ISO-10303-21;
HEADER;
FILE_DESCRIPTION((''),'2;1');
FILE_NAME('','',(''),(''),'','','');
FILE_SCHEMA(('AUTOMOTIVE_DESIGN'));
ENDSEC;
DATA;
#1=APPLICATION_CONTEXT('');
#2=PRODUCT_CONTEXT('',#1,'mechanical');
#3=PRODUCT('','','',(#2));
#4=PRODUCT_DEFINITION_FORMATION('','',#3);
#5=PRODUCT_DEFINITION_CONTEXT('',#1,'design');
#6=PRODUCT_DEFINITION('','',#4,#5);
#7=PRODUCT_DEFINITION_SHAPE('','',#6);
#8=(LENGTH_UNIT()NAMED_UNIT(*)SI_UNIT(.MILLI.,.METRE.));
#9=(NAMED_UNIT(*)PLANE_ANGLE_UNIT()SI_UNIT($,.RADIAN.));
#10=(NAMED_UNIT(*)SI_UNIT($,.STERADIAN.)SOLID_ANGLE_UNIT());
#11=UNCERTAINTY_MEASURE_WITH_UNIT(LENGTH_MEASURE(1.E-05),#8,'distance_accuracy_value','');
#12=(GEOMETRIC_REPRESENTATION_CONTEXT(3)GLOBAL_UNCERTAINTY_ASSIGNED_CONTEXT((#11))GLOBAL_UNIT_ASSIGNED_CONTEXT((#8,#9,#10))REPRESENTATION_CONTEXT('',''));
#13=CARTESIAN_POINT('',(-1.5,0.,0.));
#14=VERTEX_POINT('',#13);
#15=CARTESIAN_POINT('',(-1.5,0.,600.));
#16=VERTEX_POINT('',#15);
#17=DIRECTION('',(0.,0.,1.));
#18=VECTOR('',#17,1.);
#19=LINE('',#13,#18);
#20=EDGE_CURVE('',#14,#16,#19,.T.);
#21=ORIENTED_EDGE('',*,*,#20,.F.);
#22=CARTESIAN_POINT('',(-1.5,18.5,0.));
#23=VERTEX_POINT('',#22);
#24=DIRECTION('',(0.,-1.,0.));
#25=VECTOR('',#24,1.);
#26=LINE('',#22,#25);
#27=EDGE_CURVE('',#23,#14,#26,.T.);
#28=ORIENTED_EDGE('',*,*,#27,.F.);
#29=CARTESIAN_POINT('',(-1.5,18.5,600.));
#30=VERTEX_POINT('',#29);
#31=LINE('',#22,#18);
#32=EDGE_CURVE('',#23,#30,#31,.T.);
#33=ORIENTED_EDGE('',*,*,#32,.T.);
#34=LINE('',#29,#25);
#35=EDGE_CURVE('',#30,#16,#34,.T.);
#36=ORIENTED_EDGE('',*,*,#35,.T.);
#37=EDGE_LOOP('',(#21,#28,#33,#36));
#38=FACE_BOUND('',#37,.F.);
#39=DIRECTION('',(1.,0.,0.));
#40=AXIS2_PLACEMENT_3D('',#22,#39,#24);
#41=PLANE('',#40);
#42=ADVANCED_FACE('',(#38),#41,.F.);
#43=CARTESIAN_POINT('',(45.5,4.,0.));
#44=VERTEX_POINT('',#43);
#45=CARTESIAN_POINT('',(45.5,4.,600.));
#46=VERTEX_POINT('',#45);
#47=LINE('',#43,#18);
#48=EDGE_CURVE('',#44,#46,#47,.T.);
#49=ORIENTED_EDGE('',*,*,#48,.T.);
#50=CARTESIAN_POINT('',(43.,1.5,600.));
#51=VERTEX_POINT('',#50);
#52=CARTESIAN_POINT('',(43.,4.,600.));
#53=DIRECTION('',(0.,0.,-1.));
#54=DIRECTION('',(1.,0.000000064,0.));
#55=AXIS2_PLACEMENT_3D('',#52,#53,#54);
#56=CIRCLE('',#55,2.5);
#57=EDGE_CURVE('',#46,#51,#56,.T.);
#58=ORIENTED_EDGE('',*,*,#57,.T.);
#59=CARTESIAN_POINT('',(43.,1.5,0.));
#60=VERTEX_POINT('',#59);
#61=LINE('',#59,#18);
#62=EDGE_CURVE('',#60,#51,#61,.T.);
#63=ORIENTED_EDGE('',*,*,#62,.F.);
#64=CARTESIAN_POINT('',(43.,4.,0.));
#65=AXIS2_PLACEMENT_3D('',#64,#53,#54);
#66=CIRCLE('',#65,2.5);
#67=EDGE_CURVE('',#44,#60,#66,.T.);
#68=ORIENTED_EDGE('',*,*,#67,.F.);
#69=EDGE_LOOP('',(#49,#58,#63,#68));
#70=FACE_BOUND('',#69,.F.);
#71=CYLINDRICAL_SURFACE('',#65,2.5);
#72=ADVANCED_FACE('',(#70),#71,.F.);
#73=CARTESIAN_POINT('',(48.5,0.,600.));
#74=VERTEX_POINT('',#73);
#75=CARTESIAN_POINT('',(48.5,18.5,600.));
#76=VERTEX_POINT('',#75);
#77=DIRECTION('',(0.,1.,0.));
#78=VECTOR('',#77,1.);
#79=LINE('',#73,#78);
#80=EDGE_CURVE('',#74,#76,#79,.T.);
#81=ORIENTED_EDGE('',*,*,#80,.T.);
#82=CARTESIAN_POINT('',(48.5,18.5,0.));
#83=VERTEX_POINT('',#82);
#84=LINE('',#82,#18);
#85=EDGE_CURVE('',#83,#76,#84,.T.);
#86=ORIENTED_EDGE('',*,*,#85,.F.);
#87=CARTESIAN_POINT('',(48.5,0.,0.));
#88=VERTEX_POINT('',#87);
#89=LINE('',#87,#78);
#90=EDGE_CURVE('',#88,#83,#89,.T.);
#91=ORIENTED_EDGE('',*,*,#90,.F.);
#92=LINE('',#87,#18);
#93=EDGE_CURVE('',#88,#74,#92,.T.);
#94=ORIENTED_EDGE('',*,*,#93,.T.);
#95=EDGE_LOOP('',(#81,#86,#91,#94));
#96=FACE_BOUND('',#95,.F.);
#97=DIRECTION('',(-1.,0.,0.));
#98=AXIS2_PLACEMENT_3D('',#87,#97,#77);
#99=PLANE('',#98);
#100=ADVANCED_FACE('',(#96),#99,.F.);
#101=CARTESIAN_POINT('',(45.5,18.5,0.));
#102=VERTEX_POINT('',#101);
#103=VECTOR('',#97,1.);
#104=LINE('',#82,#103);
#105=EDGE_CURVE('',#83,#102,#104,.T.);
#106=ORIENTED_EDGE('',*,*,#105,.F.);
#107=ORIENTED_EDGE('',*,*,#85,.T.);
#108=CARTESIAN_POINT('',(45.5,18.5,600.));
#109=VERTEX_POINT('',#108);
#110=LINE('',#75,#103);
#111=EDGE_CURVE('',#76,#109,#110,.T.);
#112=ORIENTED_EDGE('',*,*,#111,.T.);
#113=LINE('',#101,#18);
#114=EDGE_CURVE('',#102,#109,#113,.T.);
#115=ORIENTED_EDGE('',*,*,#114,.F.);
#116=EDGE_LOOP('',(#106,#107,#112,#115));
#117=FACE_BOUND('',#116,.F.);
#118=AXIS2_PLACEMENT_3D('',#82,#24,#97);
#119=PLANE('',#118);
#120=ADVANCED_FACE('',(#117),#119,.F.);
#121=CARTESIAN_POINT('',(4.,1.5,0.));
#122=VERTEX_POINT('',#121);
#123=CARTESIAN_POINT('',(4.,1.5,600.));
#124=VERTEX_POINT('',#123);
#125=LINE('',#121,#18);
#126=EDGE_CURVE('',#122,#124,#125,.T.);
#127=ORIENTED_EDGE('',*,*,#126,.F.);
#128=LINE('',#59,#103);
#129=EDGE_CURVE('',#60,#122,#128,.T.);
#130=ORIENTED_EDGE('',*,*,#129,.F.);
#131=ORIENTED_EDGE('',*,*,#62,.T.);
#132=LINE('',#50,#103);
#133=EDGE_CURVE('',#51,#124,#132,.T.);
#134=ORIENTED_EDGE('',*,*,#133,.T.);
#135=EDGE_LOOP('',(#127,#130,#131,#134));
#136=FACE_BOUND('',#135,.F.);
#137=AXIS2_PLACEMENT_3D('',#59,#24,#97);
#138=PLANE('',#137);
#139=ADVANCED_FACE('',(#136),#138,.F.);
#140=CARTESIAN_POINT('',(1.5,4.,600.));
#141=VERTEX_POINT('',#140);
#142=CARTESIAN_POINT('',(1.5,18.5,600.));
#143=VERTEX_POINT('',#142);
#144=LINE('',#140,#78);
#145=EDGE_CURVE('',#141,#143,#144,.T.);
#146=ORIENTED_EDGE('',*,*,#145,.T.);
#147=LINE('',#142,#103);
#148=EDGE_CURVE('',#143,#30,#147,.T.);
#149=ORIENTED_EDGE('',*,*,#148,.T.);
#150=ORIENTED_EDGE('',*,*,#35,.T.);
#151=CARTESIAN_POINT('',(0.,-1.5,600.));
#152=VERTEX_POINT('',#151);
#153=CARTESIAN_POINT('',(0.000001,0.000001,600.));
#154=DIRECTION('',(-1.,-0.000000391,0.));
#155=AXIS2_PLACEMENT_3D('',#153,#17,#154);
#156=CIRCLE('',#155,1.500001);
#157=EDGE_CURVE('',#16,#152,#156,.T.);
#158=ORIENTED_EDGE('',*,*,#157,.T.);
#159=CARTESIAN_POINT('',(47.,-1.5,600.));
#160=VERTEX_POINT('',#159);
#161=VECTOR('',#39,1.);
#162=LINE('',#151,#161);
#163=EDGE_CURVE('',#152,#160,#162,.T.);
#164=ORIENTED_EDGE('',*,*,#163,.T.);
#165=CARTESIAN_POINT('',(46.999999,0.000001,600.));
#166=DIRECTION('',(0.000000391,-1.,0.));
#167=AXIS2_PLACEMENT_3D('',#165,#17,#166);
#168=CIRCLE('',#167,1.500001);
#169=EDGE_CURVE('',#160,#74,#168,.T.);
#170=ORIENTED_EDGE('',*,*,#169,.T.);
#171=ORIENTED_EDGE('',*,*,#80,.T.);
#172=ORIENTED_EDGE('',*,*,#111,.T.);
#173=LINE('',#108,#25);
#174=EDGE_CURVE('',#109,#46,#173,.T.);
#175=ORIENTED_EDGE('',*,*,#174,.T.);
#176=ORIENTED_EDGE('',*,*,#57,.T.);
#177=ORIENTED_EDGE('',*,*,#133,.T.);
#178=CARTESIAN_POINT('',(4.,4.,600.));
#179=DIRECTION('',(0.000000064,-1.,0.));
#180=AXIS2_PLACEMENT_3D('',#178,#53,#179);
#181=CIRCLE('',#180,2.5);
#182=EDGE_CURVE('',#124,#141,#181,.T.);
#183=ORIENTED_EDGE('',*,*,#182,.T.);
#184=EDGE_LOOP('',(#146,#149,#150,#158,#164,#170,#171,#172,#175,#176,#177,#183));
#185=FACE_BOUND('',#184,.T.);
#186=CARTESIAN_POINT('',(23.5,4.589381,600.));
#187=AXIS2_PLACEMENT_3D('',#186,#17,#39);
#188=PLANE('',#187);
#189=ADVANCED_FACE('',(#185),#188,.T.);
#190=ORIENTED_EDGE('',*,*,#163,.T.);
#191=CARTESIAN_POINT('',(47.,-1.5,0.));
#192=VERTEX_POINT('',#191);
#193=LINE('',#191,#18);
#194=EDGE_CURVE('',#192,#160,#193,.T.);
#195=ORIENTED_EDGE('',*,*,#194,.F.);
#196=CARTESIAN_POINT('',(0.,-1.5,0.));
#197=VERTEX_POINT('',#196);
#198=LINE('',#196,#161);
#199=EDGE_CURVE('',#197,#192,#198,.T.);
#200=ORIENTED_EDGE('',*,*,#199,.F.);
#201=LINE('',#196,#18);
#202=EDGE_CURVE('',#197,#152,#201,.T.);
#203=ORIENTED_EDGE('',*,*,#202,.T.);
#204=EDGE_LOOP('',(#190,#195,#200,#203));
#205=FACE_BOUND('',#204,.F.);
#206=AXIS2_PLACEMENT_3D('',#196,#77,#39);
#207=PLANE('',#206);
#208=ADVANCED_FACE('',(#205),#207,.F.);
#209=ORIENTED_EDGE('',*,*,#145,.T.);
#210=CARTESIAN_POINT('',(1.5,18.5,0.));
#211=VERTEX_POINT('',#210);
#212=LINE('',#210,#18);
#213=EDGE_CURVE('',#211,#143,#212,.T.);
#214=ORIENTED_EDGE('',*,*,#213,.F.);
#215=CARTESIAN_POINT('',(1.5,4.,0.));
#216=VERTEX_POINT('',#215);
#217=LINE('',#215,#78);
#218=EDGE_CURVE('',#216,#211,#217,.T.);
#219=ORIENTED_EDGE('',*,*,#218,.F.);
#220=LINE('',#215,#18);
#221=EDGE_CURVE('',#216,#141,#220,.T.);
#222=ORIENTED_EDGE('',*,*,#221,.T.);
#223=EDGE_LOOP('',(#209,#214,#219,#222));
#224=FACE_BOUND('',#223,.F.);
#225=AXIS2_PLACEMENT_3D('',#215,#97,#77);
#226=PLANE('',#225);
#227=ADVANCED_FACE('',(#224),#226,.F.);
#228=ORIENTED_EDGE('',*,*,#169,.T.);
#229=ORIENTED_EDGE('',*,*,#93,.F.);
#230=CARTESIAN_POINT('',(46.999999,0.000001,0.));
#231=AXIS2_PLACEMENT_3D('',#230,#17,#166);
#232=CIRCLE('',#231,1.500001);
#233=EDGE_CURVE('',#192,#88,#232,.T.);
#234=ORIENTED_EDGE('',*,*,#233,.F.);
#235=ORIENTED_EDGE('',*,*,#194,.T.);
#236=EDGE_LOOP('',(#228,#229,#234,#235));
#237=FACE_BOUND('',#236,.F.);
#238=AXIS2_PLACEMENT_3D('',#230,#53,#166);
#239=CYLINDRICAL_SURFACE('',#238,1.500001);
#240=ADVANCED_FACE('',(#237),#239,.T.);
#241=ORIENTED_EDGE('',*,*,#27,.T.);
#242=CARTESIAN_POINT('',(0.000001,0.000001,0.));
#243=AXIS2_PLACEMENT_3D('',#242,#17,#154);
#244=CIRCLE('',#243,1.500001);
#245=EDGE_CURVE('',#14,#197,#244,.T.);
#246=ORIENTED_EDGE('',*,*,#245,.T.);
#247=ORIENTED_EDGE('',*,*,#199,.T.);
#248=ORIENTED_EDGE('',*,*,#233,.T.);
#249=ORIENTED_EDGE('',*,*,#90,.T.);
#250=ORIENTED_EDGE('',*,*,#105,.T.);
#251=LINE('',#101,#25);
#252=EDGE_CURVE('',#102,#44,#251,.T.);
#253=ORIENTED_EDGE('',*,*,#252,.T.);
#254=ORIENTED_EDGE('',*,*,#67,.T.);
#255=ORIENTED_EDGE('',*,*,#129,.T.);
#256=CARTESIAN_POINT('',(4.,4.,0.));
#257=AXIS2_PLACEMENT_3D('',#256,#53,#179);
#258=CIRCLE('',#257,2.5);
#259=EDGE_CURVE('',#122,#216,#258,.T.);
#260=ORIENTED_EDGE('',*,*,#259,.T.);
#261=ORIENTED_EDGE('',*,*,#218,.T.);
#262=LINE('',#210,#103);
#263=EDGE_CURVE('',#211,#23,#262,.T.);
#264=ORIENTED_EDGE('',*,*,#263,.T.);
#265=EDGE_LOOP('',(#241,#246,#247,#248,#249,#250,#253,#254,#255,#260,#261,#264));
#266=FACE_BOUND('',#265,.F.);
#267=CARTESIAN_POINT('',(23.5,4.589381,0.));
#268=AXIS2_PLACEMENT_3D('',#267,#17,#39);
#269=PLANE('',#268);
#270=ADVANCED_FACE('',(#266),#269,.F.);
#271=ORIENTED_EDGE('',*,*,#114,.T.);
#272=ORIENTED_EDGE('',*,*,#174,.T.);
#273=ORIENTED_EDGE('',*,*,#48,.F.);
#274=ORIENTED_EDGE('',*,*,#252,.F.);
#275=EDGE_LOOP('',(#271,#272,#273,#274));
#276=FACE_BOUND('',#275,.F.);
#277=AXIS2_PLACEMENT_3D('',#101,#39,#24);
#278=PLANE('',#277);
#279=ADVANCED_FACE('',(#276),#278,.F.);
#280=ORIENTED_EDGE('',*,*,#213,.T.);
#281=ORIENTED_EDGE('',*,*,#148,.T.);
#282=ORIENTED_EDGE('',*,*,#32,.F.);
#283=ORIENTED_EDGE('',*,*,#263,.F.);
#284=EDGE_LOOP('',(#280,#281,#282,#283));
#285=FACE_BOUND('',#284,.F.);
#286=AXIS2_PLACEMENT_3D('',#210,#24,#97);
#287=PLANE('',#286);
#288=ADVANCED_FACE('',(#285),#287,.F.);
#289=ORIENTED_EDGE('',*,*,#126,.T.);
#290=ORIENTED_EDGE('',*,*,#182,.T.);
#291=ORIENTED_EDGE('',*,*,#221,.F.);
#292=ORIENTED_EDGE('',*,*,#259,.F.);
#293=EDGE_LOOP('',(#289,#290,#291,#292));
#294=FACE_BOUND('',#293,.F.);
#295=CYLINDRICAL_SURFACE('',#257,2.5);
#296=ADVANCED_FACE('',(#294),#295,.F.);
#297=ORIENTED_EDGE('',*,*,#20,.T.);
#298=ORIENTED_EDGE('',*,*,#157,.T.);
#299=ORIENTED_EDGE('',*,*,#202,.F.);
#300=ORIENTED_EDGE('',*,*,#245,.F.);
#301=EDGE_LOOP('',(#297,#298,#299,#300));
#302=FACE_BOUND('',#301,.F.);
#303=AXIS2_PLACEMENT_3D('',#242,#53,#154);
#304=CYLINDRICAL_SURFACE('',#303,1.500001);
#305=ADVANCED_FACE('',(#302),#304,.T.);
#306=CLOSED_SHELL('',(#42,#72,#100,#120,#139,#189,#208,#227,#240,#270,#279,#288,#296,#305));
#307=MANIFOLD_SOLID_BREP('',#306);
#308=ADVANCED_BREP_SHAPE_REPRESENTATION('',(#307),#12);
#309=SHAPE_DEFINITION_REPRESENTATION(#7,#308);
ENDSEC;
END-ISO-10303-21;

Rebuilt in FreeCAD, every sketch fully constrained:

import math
import FreeCAD as App
import Part
import Sketcher
from FreeCAD import Vector

doc = App.newDocument("Part")
params = doc.addObject("Spreadsheet::Sheet", "Params")
for row, (alias, value) in enumerate([
    ("sketch1_radius", "1.500001 mm"),
    ("sketch1_radius2", "2.5 mm"),
    ("sketch1_width", "47 mm"),
    ("sketch1_width2", "3 mm"),
    ("sketch1_height", "18.5 mm"),
    ("pad1_length", "600 mm"),
], start=1):
    params.set(f"A{row}", alias)
    params.set(f"B{row}", "=" + value)
    params.setAlias(f"B{row}", alias)

body = doc.addObject("PartDesign::Body", "Body")

# Sketch on XY plane
sketch1 = body.newObject("Sketcher::SketchObject", "Sketch")
sketch1.AttachmentSupport = (doc.getObject("XY_Plane"), [""])
sketch1.MapMode = "FlatFace"
sketch1.addGeometry(Part.ArcOfCircle(Part.Circle(Vector(0, 0, 0), Vector(0, 0, 1), 1.5), math.radians(-180), math.radians(-90)), False)
sketch1.addGeometry(Part.LineSegment(Vector(0, -1.5, 0), Vector(47, -1.5, 0)), False)
sketch1.addGeometry(Part.ArcOfCircle(Part.Circle(Vector(47, 0, 0), Vector(0, 0, 1), 1.5), math.radians(-90), math.radians(0)), False)
sketch1.addGeometry(Part.LineSegment(Vector(48.5, 0, 0), Vector(48.5, 18.5, 0)), False)
sketch1.addGeometry(Part.LineSegment(Vector(48.5, 18.5, 0), Vector(45.5, 18.5, 0)), False)
sketch1.addGeometry(Part.LineSegment(Vector(45.5, 18.5, 0), Vector(45.5, 4, 0)), False)
sketch1.addGeometry(Part.ArcOfCircle(Part.Circle(Vector(43, 4, 0), Vector(0, 0, 1), 2.5), math.radians(-90), math.radians(0)), False)
sketch1.addGeometry(Part.LineSegment(Vector(43, 1.5, 0), Vector(4, 1.5, 0)), False)
sketch1.addGeometry(Part.ArcOfCircle(Part.Circle(Vector(4, 4, 0), Vector(0, 0, 1), 2.5), math.radians(180), math.radians(270)), False)
sketch1.addGeometry(Part.LineSegment(Vector(1.5, 4, 0), Vector(1.5, 18.5, 0)), False)
sketch1.addGeometry(Part.LineSegment(Vector(1.5, 18.5, 0), Vector(-1.5, 18.5, 0)), False)
sketch1.addGeometry(Part.LineSegment(Vector(-1.5, 18.5, 0), Vector(-1.5, 0, 0)), False)
sketch1.addConstraint(Sketcher.Constraint("Tangent", 0, 2, 1, 1))
sketch1.addConstraint(Sketcher.Constraint("Tangent", 1, 2, 2, 1))
sketch1.addConstraint(Sketcher.Constraint("Tangent", 2, 2, 3, 1))
sketch1.addConstraint(Sketcher.Constraint("Coincident", 3, 2, 4, 1))
sketch1.addConstraint(Sketcher.Constraint("Coincident", 4, 2, 5, 1))
sketch1.addConstraint(Sketcher.Constraint("Tangent", 5, 2, 6, 2))
sketch1.addConstraint(Sketcher.Constraint("Tangent", 6, 1, 7, 1))
sketch1.addConstraint(Sketcher.Constraint("Tangent", 7, 2, 8, 2))
sketch1.addConstraint(Sketcher.Constraint("Tangent", 8, 1, 9, 1))
sketch1.addConstraint(Sketcher.Constraint("Coincident", 9, 2, 10, 1))
sketch1.addConstraint(Sketcher.Constraint("Coincident", 10, 2, 11, 1))
sketch1.addConstraint(Sketcher.Constraint("Tangent", 11, 2, 0, 1))
sketch1.addConstraint(Sketcher.Constraint("Horizontal", 1))
sketch1.addConstraint(Sketcher.Constraint("Vertical", 3))
sketch1.addConstraint(Sketcher.Constraint("Horizontal", 4))
sketch1.addConstraint(Sketcher.Constraint("Vertical", 5))
sketch1.addConstraint(Sketcher.Constraint("Horizontal", 7))
sketch1.addConstraint(Sketcher.Constraint("Vertical", 9))
sketch1.addConstraint(Sketcher.Constraint("Horizontal", 10))
sketch1.addConstraint(Sketcher.Constraint("Vertical", 11))
sketch1.addConstraint(Sketcher.Constraint("Coincident", 0, 3, -1, 1))
sketch1.addConstraint(Sketcher.Constraint("Equal", 0, 2))
sketch1.addConstraint(Sketcher.Constraint("Equal", 6, 8))
sketch1.addConstraint(Sketcher.Constraint("Horizontal", 4, 2, 9, 2))
sketch1.addConstraint(Sketcher.Constraint("Equal", 4, 10))
sketch1.addConstraint(Sketcher.Constraint("Radius", 0, 1.500001))
sketch1.addConstraint(Sketcher.Constraint("Radius", 6, 2.5))
sketch1.addConstraint(Sketcher.Constraint("DistanceX", 1, 1, 1, 2, 47.0))
sketch1.addConstraint(Sketcher.Constraint("DistanceX", 4, 2, 4, 1, 3.0))
sketch1.addConstraint(Sketcher.Constraint("DistanceY", 3, 1, 3, 2, 18.5))
sketch1.addConstraint(Sketcher.Constraint("DistanceY", 5, 2, 5, 1, 14.5))
sketch1.setExpression("Constraints[25]", "Params.sketch1_radius")
sketch1.setExpression("Constraints[26]", "Params.sketch1_radius2")
sketch1.setExpression("Constraints[27]", "Params.sketch1_width")
sketch1.setExpression("Constraints[28]", "Params.sketch1_width2")
sketch1.setExpression("Constraints[29]", "Params.sketch1_height")
pad1 = body.newObject("PartDesign::Pad", "Pad")
pad1.Profile = sketch1
pad1.setExpression("Length", "Params.pad1_length")

doc.recompute()
